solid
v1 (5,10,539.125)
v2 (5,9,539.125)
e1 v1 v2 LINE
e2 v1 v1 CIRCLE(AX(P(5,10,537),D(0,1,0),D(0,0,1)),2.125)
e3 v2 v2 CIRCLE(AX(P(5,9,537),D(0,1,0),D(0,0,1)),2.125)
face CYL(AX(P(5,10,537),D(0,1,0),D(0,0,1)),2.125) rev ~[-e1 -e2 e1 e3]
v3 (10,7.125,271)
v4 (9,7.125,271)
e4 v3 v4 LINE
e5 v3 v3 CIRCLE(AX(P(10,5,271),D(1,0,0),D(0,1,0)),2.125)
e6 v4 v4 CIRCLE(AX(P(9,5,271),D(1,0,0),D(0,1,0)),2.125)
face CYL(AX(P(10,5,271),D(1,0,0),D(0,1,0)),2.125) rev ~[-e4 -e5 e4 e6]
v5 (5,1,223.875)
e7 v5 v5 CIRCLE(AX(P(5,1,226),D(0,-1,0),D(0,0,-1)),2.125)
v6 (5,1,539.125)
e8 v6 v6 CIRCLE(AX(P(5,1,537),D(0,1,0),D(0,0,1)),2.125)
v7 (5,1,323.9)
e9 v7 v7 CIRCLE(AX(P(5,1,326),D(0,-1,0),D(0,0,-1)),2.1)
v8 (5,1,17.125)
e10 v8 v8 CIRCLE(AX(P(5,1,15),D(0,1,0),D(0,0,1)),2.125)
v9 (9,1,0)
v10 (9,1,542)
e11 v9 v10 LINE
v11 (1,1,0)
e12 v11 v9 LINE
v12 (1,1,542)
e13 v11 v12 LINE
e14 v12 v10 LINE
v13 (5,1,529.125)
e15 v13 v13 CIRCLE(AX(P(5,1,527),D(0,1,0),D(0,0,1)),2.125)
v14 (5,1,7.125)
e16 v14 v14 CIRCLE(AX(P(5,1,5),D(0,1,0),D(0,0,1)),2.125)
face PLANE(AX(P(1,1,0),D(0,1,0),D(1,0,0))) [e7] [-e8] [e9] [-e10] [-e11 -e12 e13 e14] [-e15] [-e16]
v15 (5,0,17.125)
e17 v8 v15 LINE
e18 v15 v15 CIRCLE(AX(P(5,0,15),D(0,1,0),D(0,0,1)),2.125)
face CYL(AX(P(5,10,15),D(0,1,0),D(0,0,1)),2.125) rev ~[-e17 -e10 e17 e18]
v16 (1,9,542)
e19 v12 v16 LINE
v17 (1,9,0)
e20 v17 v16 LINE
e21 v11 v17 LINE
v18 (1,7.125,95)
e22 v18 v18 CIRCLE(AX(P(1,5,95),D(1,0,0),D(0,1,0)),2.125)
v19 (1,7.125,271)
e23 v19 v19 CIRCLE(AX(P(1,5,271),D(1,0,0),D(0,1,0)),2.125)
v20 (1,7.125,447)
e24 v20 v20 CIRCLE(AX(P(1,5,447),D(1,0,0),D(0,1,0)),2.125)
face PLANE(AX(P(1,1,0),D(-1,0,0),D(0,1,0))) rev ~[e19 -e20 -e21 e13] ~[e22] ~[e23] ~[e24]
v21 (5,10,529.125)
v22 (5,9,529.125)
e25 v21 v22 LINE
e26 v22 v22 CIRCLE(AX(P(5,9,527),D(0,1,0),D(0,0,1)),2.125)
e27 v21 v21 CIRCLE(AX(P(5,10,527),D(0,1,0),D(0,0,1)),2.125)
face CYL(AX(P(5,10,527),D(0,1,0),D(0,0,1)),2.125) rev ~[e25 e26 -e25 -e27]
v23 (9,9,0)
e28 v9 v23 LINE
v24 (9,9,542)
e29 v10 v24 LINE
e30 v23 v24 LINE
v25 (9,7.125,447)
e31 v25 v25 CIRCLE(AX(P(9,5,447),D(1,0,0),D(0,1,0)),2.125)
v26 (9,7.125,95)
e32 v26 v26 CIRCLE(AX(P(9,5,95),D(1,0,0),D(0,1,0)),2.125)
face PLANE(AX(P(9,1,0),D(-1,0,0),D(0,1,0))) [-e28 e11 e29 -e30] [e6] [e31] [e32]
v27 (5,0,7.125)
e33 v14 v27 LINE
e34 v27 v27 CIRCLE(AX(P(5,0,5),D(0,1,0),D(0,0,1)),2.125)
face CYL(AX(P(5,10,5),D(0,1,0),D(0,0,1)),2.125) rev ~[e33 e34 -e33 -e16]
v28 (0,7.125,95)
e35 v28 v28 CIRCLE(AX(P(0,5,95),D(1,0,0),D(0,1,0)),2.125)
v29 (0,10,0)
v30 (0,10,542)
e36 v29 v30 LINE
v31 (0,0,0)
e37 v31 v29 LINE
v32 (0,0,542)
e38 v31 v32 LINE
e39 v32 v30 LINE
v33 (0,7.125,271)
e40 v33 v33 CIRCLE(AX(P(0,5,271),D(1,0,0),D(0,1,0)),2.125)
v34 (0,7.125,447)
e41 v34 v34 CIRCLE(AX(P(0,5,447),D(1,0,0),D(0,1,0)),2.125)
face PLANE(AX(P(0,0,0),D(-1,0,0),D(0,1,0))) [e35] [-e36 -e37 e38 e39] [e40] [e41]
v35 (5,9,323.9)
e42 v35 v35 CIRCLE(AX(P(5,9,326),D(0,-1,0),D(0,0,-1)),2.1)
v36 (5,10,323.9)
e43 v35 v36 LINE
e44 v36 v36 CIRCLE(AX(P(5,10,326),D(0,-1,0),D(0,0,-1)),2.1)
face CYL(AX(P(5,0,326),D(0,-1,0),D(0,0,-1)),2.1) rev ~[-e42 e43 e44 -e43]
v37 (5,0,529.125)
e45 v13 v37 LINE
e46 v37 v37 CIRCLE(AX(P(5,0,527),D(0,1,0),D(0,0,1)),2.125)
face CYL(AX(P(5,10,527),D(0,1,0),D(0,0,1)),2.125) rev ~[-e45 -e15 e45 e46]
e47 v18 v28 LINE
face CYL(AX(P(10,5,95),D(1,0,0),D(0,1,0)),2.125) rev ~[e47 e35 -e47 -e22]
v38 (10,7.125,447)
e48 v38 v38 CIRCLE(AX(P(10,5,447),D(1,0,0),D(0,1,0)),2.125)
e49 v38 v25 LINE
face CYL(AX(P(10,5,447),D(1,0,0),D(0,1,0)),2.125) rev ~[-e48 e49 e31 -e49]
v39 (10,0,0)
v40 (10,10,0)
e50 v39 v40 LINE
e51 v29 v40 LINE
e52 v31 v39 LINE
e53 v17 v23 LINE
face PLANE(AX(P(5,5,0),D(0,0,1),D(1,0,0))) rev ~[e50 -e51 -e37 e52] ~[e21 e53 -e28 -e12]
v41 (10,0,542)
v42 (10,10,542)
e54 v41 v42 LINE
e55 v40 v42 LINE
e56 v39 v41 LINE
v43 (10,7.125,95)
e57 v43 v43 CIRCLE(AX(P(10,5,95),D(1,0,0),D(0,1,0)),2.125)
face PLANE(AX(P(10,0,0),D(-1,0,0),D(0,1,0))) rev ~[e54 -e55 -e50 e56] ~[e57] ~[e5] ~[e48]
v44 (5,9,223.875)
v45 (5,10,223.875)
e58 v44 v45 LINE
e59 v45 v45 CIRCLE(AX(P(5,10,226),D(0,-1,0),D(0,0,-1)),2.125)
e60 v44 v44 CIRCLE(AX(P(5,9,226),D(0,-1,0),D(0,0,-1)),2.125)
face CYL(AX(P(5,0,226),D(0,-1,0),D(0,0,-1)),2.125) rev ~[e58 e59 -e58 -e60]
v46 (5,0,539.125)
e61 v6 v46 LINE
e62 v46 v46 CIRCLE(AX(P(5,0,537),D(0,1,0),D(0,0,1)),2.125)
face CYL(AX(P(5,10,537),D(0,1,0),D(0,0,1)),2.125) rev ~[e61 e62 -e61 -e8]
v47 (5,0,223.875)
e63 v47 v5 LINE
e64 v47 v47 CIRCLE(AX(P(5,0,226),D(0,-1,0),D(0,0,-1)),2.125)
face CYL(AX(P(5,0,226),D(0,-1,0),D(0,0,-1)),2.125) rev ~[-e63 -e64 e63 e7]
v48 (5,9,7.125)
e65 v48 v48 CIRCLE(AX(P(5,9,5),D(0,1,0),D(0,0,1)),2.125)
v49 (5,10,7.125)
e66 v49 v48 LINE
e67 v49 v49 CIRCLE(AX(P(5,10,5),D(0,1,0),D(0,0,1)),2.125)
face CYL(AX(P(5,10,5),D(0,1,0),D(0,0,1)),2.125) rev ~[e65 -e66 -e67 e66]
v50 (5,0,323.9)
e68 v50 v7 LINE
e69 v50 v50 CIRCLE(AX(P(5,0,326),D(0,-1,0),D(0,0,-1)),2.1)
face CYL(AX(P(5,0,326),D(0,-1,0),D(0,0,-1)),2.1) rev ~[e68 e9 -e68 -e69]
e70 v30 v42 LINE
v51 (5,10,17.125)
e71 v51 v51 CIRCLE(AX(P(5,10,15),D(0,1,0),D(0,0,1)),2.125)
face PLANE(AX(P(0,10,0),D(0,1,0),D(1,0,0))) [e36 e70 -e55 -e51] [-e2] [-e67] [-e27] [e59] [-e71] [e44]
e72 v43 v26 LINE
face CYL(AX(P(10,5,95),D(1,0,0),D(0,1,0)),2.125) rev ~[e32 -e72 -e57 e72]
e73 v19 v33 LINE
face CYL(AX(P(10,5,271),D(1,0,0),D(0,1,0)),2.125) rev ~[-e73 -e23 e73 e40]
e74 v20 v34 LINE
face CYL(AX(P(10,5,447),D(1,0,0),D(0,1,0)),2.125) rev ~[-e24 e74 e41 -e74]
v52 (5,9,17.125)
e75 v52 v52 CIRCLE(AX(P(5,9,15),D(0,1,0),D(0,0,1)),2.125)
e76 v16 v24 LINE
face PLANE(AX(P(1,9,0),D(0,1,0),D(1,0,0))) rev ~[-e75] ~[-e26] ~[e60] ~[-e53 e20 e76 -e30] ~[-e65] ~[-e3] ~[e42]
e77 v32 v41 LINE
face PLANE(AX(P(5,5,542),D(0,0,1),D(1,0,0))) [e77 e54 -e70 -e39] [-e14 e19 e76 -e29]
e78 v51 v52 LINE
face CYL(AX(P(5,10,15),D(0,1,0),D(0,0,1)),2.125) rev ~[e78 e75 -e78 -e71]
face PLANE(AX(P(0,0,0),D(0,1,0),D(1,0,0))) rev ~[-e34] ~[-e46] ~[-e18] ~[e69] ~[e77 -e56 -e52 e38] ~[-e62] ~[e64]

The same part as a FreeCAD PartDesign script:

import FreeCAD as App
import Part
import Sketcher
from FreeCAD import Vector
Q = App.Units.Quantity


def add_polygon(sketch, points):
    """Adds a closed chain of lines whose ends are joined by coincident constraints."""
    first, n = sketch.GeometryCount, len(points)
    for a, b in zip(points, points[1:] + points[:1]):
        sketch.addGeometry(Part.LineSegment(App.Vector(*a, 0), App.Vector(*b, 0)), False)
    for i in range(n):
        sketch.addConstraint(Sketcher.Constraint("Coincident", first + i, 2, first + (i + 1) % n, 1))

doc = App.newDocument("Part")
params = doc.addObject("Spreadsheet::Sheet", "Params")
for row, (alias, value) in enumerate([
    ("sketch1_width", "10 mm"),
    ("sketch1_width2", "8 mm"),
    ("pad1_length", "542 mm"),
    ("sketch2_diameter", "4.25 mm"),
    ("pocket1_length", "116 mm"),
    ("sketch3_diameter", "4.2 mm"),
    ("sketch3_diameter2", "4.25 mm"),
    ("pocket2_length", "10 mm"),
    ("sketch4_diameter", "4.25 mm"),
    ("pocket3_length", "10 mm"),
], start=1):
    params.set(f"A{row}", alias)
    params.set(f"B{row}", "=" + value)
    params.setAlias(f"B{row}", alias)

body = doc.addObject("PartDesign::Body", "Body")

sketch1 = body.newObject("Sketcher::SketchObject", "Sketch")
sketch1.AttachmentSupport = (doc.getObject("XY_Plane"), [""])
sketch1.MapMode = "FlatFace"
add_polygon(sketch1, [(0, 10), (0, 0), (10, 0), (10, 10)])
add_polygon(sketch1, [(9, 1), (1, 1), (1, 9), (9, 9)])
sketch1.addConstraint(Sketcher.Constraint("Vertical", 0))
sketch1.addConstraint(Sketcher.Constraint("Horizontal", 1))
sketch1.addConstraint(Sketcher.Constraint("Vertical", 2))
sketch1.addConstraint(Sketcher.Constraint("Horizontal", 3))
sketch1.addConstraint(Sketcher.Constraint("Horizontal", 4))
sketch1.addConstraint(Sketcher.Constraint("Vertical", 5))
sketch1.addConstraint(Sketcher.Constraint("Horizontal", 6))
sketch1.addConstraint(Sketcher.Constraint("Vertical", 7))
sketch1.addConstraint(Sketcher.Constraint("Coincident", 0, 2, -1, 1))
sketch1.addConstraint(Sketcher.Constraint("Equal", 3, 0))
sketch1.addConstraint(Sketcher.Constraint("Equal", 6, 5))
sketch1.addConstraint(Sketcher.Constraint("DistanceX", 1, 1, 1, 2, Q("10 mm")))
sketch1.addConstraint(Sketcher.Constraint("DistanceX", 4, 2, 4, 1, Q("8 mm")))
sketch1.addConstraint(Sketcher.Constraint("DistanceX", -1, 1, 4, 2, Q("1 mm")))
sketch1.addConstraint(Sketcher.Constraint("DistanceY", -1, 1, 4, 2, Q("1 mm")))
sketch1.setExpression("Constraints[19]", "Params.sketch1_width")
sketch1.setExpression("Constraints[20]", "Params.sketch1_width2")
pad1 = body.newObject("PartDesign::Pad", "Pad")
pad1.Profile = sketch1
pad1.setExpression("Length", "Params.pad1_length")

sketch2 = body.newObject("Sketcher::SketchObject", "Sketch001")
sketch2.AttachmentSupport = (doc.getObject("XZ_Plane"), [""])
sketch2.MapMode = "FlatFace"
sketch2.AttachmentOffset = App.Placement(Vector(0, 0, -10), App.Rotation())
sketch2.addGeometry(Part.Circle(Vector(5, 5, 0), Vector(0, 0, 1), 2.125), False)
sketch2.addGeometry(Part.Circle(Vector(5, 15, 0), Vector(0, 0, 1), 2.125), False)
sketch2.addGeometry(Part.Circle(Vector(5, 527, 0), Vector(0, 0, 1), 2.125), False)
sketch2.addGeometry(Part.Circle(Vector(5, 537, 0), Vector(0, 0, 1), 2.125), False)
sketch2.addConstraint(Sketcher.Constraint("Equal", 0, 1))
sketch2.addConstraint(Sketcher.Constraint("Equal", 1, 2))
sketch2.addConstraint(Sketcher.Constraint("Equal", 2, 3))
sketch2.addConstraint(Sketcher.Constraint("Vertical", 0, 3, 1, 3))
sketch2.addConstraint(Sketcher.Constraint("Vertical", 1, 3, 2, 3))
sketch2.addConstraint(Sketcher.Constraint("Vertical", 2, 3, 3, 3))
sketch2.addConstraint(Sketcher.Constraint("Diameter", 0, Q("4.25 mm")))
sketch2.addConstraint(Sketcher.Constraint("DistanceX", -1, 1, 0, 3, Q("5 mm")))
sketch2.addConstraint(Sketcher.Constraint("DistanceY", -1, 1, 0, 3, Q("5 mm")))
sketch2.addConstraint(Sketcher.Constraint("DistanceY", -1, 1, 1, 3, Q("15 mm")))
sketch2.addConstraint(Sketcher.Constraint("DistanceY", -1, 1, 2, 3, Q("527 mm")))
sketch2.addConstraint(Sketcher.Constraint("DistanceY", -1, 1, 3, 3, Q("537 mm")))
sketch2.setExpression("Constraints[6]", "Params.sketch2_diameter")
pocket1 = body.newObject("PartDesign::Pocket", "Pocket")
pocket1.Profile = sketch2
pocket1.setExpression("Length", "Params.pocket1_length")
pocket1.Reversed = True

sketch3 = body.newObject("Sketcher::SketchObject", "Sketch002")
sketch3.AttachmentSupport = (doc.getObject("XZ_Plane"), [""])
sketch3.MapMode = "FlatFace"
sketch3.addGeometry(Part.Circle(Vector(5, 326, 0), Vector(0, 0, 1), 2.1), False)
sketch3.addGeometry(Part.Circle(Vector(5, 226, 0), Vector(0, 0, 1), 2.125), False)
sketch3.addConstraint(Sketcher.Constraint("Vertical", 0, 3, 1, 3))
sketch3.addConstraint(Sketcher.Constraint("Diameter", 0, Q("4.2 mm")))
sketch3.addConstraint(Sketcher.Constraint("Diameter", 1, Q("4.25 mm")))
sketch3.addConstraint(Sketcher.Constraint("DistanceX", -1, 1, 0, 3, Q("5 mm")))
sketch3.addConstraint(Sketcher.Constraint("DistanceY", -1, 1, 0, 3, Q("326 mm")))
sketch3.addConstraint(Sketcher.Constraint("DistanceY", -1, 1, 1, 3, Q("226 mm")))
sketch3.setExpression("Constraints[1]", "Params.sketch3_diameter")
sketch3.setExpression("Constraints[2]", "Params.sketch3_diameter2")
pocket2 = body.newObject("PartDesign::Pocket", "Pocket001")
pocket2.Profile = sketch3
pocket2.setExpression("Length", "Params.pocket2_length")

sketch4 = body.newObject("Sketcher::SketchObject", "Sketch003")
sketch4.AttachmentSupport = (doc.getObject("YZ_Plane"), [""])
sketch4.MapMode = "FlatFace"
sketch4.AttachmentOffset = App.Placement(Vector(0, 0, 10), App.Rotation())
sketch4.addGeometry(Part.Circle(Vector(5, 447, 0), Vector(0, 0, 1), 2.125), False)
sketch4.addGeometry(Part.Circle(Vector(5, 95, 0), Vector(0, 0, 1), 2.125), False)
sketch4.addGeometry(Part.Circle(Vector(5, 271, 0), Vector(0, 0, 1), 2.125), False)
sketch4.addConstraint(Sketcher.Constraint("Equal", 0, 1))
sketch4.addConstraint(Sketcher.Constraint("Equal", 1, 2))
sketch4.addConstraint(Sketcher.Constraint("Vertical", 0, 3, 1, 3))
sketch4.addConstraint(Sketcher.Constraint("Vertical", 1, 3, 2, 3))
sketch4.addConstraint(Sketcher.Constraint("Diameter", 0, Q("4.25 mm")))
sketch4.addConstraint(Sketcher.Constraint("DistanceX", -1, 1, 0, 3, Q("5 mm")))
sketch4.addConstraint(Sketcher.Constraint("DistanceY", -1, 1, 0, 3, Q("447 mm")))
sketch4.addConstraint(Sketcher.Constraint("DistanceY", -1, 1, 1, 3, Q("95 mm")))
sketch4.addConstraint(Sketcher.Constraint("DistanceY", -1, 1, 2, 3, Q("271 mm")))
sketch4.setExpression("Constraints[4]", "Params.sketch4_diameter")
pocket3 = body.newObject("PartDesign::Pocket", "Pocket002")
pocket3.Profile = sketch4
pocket3.setExpression("Length", "Params.pocket3_length")

doc.recompute()
